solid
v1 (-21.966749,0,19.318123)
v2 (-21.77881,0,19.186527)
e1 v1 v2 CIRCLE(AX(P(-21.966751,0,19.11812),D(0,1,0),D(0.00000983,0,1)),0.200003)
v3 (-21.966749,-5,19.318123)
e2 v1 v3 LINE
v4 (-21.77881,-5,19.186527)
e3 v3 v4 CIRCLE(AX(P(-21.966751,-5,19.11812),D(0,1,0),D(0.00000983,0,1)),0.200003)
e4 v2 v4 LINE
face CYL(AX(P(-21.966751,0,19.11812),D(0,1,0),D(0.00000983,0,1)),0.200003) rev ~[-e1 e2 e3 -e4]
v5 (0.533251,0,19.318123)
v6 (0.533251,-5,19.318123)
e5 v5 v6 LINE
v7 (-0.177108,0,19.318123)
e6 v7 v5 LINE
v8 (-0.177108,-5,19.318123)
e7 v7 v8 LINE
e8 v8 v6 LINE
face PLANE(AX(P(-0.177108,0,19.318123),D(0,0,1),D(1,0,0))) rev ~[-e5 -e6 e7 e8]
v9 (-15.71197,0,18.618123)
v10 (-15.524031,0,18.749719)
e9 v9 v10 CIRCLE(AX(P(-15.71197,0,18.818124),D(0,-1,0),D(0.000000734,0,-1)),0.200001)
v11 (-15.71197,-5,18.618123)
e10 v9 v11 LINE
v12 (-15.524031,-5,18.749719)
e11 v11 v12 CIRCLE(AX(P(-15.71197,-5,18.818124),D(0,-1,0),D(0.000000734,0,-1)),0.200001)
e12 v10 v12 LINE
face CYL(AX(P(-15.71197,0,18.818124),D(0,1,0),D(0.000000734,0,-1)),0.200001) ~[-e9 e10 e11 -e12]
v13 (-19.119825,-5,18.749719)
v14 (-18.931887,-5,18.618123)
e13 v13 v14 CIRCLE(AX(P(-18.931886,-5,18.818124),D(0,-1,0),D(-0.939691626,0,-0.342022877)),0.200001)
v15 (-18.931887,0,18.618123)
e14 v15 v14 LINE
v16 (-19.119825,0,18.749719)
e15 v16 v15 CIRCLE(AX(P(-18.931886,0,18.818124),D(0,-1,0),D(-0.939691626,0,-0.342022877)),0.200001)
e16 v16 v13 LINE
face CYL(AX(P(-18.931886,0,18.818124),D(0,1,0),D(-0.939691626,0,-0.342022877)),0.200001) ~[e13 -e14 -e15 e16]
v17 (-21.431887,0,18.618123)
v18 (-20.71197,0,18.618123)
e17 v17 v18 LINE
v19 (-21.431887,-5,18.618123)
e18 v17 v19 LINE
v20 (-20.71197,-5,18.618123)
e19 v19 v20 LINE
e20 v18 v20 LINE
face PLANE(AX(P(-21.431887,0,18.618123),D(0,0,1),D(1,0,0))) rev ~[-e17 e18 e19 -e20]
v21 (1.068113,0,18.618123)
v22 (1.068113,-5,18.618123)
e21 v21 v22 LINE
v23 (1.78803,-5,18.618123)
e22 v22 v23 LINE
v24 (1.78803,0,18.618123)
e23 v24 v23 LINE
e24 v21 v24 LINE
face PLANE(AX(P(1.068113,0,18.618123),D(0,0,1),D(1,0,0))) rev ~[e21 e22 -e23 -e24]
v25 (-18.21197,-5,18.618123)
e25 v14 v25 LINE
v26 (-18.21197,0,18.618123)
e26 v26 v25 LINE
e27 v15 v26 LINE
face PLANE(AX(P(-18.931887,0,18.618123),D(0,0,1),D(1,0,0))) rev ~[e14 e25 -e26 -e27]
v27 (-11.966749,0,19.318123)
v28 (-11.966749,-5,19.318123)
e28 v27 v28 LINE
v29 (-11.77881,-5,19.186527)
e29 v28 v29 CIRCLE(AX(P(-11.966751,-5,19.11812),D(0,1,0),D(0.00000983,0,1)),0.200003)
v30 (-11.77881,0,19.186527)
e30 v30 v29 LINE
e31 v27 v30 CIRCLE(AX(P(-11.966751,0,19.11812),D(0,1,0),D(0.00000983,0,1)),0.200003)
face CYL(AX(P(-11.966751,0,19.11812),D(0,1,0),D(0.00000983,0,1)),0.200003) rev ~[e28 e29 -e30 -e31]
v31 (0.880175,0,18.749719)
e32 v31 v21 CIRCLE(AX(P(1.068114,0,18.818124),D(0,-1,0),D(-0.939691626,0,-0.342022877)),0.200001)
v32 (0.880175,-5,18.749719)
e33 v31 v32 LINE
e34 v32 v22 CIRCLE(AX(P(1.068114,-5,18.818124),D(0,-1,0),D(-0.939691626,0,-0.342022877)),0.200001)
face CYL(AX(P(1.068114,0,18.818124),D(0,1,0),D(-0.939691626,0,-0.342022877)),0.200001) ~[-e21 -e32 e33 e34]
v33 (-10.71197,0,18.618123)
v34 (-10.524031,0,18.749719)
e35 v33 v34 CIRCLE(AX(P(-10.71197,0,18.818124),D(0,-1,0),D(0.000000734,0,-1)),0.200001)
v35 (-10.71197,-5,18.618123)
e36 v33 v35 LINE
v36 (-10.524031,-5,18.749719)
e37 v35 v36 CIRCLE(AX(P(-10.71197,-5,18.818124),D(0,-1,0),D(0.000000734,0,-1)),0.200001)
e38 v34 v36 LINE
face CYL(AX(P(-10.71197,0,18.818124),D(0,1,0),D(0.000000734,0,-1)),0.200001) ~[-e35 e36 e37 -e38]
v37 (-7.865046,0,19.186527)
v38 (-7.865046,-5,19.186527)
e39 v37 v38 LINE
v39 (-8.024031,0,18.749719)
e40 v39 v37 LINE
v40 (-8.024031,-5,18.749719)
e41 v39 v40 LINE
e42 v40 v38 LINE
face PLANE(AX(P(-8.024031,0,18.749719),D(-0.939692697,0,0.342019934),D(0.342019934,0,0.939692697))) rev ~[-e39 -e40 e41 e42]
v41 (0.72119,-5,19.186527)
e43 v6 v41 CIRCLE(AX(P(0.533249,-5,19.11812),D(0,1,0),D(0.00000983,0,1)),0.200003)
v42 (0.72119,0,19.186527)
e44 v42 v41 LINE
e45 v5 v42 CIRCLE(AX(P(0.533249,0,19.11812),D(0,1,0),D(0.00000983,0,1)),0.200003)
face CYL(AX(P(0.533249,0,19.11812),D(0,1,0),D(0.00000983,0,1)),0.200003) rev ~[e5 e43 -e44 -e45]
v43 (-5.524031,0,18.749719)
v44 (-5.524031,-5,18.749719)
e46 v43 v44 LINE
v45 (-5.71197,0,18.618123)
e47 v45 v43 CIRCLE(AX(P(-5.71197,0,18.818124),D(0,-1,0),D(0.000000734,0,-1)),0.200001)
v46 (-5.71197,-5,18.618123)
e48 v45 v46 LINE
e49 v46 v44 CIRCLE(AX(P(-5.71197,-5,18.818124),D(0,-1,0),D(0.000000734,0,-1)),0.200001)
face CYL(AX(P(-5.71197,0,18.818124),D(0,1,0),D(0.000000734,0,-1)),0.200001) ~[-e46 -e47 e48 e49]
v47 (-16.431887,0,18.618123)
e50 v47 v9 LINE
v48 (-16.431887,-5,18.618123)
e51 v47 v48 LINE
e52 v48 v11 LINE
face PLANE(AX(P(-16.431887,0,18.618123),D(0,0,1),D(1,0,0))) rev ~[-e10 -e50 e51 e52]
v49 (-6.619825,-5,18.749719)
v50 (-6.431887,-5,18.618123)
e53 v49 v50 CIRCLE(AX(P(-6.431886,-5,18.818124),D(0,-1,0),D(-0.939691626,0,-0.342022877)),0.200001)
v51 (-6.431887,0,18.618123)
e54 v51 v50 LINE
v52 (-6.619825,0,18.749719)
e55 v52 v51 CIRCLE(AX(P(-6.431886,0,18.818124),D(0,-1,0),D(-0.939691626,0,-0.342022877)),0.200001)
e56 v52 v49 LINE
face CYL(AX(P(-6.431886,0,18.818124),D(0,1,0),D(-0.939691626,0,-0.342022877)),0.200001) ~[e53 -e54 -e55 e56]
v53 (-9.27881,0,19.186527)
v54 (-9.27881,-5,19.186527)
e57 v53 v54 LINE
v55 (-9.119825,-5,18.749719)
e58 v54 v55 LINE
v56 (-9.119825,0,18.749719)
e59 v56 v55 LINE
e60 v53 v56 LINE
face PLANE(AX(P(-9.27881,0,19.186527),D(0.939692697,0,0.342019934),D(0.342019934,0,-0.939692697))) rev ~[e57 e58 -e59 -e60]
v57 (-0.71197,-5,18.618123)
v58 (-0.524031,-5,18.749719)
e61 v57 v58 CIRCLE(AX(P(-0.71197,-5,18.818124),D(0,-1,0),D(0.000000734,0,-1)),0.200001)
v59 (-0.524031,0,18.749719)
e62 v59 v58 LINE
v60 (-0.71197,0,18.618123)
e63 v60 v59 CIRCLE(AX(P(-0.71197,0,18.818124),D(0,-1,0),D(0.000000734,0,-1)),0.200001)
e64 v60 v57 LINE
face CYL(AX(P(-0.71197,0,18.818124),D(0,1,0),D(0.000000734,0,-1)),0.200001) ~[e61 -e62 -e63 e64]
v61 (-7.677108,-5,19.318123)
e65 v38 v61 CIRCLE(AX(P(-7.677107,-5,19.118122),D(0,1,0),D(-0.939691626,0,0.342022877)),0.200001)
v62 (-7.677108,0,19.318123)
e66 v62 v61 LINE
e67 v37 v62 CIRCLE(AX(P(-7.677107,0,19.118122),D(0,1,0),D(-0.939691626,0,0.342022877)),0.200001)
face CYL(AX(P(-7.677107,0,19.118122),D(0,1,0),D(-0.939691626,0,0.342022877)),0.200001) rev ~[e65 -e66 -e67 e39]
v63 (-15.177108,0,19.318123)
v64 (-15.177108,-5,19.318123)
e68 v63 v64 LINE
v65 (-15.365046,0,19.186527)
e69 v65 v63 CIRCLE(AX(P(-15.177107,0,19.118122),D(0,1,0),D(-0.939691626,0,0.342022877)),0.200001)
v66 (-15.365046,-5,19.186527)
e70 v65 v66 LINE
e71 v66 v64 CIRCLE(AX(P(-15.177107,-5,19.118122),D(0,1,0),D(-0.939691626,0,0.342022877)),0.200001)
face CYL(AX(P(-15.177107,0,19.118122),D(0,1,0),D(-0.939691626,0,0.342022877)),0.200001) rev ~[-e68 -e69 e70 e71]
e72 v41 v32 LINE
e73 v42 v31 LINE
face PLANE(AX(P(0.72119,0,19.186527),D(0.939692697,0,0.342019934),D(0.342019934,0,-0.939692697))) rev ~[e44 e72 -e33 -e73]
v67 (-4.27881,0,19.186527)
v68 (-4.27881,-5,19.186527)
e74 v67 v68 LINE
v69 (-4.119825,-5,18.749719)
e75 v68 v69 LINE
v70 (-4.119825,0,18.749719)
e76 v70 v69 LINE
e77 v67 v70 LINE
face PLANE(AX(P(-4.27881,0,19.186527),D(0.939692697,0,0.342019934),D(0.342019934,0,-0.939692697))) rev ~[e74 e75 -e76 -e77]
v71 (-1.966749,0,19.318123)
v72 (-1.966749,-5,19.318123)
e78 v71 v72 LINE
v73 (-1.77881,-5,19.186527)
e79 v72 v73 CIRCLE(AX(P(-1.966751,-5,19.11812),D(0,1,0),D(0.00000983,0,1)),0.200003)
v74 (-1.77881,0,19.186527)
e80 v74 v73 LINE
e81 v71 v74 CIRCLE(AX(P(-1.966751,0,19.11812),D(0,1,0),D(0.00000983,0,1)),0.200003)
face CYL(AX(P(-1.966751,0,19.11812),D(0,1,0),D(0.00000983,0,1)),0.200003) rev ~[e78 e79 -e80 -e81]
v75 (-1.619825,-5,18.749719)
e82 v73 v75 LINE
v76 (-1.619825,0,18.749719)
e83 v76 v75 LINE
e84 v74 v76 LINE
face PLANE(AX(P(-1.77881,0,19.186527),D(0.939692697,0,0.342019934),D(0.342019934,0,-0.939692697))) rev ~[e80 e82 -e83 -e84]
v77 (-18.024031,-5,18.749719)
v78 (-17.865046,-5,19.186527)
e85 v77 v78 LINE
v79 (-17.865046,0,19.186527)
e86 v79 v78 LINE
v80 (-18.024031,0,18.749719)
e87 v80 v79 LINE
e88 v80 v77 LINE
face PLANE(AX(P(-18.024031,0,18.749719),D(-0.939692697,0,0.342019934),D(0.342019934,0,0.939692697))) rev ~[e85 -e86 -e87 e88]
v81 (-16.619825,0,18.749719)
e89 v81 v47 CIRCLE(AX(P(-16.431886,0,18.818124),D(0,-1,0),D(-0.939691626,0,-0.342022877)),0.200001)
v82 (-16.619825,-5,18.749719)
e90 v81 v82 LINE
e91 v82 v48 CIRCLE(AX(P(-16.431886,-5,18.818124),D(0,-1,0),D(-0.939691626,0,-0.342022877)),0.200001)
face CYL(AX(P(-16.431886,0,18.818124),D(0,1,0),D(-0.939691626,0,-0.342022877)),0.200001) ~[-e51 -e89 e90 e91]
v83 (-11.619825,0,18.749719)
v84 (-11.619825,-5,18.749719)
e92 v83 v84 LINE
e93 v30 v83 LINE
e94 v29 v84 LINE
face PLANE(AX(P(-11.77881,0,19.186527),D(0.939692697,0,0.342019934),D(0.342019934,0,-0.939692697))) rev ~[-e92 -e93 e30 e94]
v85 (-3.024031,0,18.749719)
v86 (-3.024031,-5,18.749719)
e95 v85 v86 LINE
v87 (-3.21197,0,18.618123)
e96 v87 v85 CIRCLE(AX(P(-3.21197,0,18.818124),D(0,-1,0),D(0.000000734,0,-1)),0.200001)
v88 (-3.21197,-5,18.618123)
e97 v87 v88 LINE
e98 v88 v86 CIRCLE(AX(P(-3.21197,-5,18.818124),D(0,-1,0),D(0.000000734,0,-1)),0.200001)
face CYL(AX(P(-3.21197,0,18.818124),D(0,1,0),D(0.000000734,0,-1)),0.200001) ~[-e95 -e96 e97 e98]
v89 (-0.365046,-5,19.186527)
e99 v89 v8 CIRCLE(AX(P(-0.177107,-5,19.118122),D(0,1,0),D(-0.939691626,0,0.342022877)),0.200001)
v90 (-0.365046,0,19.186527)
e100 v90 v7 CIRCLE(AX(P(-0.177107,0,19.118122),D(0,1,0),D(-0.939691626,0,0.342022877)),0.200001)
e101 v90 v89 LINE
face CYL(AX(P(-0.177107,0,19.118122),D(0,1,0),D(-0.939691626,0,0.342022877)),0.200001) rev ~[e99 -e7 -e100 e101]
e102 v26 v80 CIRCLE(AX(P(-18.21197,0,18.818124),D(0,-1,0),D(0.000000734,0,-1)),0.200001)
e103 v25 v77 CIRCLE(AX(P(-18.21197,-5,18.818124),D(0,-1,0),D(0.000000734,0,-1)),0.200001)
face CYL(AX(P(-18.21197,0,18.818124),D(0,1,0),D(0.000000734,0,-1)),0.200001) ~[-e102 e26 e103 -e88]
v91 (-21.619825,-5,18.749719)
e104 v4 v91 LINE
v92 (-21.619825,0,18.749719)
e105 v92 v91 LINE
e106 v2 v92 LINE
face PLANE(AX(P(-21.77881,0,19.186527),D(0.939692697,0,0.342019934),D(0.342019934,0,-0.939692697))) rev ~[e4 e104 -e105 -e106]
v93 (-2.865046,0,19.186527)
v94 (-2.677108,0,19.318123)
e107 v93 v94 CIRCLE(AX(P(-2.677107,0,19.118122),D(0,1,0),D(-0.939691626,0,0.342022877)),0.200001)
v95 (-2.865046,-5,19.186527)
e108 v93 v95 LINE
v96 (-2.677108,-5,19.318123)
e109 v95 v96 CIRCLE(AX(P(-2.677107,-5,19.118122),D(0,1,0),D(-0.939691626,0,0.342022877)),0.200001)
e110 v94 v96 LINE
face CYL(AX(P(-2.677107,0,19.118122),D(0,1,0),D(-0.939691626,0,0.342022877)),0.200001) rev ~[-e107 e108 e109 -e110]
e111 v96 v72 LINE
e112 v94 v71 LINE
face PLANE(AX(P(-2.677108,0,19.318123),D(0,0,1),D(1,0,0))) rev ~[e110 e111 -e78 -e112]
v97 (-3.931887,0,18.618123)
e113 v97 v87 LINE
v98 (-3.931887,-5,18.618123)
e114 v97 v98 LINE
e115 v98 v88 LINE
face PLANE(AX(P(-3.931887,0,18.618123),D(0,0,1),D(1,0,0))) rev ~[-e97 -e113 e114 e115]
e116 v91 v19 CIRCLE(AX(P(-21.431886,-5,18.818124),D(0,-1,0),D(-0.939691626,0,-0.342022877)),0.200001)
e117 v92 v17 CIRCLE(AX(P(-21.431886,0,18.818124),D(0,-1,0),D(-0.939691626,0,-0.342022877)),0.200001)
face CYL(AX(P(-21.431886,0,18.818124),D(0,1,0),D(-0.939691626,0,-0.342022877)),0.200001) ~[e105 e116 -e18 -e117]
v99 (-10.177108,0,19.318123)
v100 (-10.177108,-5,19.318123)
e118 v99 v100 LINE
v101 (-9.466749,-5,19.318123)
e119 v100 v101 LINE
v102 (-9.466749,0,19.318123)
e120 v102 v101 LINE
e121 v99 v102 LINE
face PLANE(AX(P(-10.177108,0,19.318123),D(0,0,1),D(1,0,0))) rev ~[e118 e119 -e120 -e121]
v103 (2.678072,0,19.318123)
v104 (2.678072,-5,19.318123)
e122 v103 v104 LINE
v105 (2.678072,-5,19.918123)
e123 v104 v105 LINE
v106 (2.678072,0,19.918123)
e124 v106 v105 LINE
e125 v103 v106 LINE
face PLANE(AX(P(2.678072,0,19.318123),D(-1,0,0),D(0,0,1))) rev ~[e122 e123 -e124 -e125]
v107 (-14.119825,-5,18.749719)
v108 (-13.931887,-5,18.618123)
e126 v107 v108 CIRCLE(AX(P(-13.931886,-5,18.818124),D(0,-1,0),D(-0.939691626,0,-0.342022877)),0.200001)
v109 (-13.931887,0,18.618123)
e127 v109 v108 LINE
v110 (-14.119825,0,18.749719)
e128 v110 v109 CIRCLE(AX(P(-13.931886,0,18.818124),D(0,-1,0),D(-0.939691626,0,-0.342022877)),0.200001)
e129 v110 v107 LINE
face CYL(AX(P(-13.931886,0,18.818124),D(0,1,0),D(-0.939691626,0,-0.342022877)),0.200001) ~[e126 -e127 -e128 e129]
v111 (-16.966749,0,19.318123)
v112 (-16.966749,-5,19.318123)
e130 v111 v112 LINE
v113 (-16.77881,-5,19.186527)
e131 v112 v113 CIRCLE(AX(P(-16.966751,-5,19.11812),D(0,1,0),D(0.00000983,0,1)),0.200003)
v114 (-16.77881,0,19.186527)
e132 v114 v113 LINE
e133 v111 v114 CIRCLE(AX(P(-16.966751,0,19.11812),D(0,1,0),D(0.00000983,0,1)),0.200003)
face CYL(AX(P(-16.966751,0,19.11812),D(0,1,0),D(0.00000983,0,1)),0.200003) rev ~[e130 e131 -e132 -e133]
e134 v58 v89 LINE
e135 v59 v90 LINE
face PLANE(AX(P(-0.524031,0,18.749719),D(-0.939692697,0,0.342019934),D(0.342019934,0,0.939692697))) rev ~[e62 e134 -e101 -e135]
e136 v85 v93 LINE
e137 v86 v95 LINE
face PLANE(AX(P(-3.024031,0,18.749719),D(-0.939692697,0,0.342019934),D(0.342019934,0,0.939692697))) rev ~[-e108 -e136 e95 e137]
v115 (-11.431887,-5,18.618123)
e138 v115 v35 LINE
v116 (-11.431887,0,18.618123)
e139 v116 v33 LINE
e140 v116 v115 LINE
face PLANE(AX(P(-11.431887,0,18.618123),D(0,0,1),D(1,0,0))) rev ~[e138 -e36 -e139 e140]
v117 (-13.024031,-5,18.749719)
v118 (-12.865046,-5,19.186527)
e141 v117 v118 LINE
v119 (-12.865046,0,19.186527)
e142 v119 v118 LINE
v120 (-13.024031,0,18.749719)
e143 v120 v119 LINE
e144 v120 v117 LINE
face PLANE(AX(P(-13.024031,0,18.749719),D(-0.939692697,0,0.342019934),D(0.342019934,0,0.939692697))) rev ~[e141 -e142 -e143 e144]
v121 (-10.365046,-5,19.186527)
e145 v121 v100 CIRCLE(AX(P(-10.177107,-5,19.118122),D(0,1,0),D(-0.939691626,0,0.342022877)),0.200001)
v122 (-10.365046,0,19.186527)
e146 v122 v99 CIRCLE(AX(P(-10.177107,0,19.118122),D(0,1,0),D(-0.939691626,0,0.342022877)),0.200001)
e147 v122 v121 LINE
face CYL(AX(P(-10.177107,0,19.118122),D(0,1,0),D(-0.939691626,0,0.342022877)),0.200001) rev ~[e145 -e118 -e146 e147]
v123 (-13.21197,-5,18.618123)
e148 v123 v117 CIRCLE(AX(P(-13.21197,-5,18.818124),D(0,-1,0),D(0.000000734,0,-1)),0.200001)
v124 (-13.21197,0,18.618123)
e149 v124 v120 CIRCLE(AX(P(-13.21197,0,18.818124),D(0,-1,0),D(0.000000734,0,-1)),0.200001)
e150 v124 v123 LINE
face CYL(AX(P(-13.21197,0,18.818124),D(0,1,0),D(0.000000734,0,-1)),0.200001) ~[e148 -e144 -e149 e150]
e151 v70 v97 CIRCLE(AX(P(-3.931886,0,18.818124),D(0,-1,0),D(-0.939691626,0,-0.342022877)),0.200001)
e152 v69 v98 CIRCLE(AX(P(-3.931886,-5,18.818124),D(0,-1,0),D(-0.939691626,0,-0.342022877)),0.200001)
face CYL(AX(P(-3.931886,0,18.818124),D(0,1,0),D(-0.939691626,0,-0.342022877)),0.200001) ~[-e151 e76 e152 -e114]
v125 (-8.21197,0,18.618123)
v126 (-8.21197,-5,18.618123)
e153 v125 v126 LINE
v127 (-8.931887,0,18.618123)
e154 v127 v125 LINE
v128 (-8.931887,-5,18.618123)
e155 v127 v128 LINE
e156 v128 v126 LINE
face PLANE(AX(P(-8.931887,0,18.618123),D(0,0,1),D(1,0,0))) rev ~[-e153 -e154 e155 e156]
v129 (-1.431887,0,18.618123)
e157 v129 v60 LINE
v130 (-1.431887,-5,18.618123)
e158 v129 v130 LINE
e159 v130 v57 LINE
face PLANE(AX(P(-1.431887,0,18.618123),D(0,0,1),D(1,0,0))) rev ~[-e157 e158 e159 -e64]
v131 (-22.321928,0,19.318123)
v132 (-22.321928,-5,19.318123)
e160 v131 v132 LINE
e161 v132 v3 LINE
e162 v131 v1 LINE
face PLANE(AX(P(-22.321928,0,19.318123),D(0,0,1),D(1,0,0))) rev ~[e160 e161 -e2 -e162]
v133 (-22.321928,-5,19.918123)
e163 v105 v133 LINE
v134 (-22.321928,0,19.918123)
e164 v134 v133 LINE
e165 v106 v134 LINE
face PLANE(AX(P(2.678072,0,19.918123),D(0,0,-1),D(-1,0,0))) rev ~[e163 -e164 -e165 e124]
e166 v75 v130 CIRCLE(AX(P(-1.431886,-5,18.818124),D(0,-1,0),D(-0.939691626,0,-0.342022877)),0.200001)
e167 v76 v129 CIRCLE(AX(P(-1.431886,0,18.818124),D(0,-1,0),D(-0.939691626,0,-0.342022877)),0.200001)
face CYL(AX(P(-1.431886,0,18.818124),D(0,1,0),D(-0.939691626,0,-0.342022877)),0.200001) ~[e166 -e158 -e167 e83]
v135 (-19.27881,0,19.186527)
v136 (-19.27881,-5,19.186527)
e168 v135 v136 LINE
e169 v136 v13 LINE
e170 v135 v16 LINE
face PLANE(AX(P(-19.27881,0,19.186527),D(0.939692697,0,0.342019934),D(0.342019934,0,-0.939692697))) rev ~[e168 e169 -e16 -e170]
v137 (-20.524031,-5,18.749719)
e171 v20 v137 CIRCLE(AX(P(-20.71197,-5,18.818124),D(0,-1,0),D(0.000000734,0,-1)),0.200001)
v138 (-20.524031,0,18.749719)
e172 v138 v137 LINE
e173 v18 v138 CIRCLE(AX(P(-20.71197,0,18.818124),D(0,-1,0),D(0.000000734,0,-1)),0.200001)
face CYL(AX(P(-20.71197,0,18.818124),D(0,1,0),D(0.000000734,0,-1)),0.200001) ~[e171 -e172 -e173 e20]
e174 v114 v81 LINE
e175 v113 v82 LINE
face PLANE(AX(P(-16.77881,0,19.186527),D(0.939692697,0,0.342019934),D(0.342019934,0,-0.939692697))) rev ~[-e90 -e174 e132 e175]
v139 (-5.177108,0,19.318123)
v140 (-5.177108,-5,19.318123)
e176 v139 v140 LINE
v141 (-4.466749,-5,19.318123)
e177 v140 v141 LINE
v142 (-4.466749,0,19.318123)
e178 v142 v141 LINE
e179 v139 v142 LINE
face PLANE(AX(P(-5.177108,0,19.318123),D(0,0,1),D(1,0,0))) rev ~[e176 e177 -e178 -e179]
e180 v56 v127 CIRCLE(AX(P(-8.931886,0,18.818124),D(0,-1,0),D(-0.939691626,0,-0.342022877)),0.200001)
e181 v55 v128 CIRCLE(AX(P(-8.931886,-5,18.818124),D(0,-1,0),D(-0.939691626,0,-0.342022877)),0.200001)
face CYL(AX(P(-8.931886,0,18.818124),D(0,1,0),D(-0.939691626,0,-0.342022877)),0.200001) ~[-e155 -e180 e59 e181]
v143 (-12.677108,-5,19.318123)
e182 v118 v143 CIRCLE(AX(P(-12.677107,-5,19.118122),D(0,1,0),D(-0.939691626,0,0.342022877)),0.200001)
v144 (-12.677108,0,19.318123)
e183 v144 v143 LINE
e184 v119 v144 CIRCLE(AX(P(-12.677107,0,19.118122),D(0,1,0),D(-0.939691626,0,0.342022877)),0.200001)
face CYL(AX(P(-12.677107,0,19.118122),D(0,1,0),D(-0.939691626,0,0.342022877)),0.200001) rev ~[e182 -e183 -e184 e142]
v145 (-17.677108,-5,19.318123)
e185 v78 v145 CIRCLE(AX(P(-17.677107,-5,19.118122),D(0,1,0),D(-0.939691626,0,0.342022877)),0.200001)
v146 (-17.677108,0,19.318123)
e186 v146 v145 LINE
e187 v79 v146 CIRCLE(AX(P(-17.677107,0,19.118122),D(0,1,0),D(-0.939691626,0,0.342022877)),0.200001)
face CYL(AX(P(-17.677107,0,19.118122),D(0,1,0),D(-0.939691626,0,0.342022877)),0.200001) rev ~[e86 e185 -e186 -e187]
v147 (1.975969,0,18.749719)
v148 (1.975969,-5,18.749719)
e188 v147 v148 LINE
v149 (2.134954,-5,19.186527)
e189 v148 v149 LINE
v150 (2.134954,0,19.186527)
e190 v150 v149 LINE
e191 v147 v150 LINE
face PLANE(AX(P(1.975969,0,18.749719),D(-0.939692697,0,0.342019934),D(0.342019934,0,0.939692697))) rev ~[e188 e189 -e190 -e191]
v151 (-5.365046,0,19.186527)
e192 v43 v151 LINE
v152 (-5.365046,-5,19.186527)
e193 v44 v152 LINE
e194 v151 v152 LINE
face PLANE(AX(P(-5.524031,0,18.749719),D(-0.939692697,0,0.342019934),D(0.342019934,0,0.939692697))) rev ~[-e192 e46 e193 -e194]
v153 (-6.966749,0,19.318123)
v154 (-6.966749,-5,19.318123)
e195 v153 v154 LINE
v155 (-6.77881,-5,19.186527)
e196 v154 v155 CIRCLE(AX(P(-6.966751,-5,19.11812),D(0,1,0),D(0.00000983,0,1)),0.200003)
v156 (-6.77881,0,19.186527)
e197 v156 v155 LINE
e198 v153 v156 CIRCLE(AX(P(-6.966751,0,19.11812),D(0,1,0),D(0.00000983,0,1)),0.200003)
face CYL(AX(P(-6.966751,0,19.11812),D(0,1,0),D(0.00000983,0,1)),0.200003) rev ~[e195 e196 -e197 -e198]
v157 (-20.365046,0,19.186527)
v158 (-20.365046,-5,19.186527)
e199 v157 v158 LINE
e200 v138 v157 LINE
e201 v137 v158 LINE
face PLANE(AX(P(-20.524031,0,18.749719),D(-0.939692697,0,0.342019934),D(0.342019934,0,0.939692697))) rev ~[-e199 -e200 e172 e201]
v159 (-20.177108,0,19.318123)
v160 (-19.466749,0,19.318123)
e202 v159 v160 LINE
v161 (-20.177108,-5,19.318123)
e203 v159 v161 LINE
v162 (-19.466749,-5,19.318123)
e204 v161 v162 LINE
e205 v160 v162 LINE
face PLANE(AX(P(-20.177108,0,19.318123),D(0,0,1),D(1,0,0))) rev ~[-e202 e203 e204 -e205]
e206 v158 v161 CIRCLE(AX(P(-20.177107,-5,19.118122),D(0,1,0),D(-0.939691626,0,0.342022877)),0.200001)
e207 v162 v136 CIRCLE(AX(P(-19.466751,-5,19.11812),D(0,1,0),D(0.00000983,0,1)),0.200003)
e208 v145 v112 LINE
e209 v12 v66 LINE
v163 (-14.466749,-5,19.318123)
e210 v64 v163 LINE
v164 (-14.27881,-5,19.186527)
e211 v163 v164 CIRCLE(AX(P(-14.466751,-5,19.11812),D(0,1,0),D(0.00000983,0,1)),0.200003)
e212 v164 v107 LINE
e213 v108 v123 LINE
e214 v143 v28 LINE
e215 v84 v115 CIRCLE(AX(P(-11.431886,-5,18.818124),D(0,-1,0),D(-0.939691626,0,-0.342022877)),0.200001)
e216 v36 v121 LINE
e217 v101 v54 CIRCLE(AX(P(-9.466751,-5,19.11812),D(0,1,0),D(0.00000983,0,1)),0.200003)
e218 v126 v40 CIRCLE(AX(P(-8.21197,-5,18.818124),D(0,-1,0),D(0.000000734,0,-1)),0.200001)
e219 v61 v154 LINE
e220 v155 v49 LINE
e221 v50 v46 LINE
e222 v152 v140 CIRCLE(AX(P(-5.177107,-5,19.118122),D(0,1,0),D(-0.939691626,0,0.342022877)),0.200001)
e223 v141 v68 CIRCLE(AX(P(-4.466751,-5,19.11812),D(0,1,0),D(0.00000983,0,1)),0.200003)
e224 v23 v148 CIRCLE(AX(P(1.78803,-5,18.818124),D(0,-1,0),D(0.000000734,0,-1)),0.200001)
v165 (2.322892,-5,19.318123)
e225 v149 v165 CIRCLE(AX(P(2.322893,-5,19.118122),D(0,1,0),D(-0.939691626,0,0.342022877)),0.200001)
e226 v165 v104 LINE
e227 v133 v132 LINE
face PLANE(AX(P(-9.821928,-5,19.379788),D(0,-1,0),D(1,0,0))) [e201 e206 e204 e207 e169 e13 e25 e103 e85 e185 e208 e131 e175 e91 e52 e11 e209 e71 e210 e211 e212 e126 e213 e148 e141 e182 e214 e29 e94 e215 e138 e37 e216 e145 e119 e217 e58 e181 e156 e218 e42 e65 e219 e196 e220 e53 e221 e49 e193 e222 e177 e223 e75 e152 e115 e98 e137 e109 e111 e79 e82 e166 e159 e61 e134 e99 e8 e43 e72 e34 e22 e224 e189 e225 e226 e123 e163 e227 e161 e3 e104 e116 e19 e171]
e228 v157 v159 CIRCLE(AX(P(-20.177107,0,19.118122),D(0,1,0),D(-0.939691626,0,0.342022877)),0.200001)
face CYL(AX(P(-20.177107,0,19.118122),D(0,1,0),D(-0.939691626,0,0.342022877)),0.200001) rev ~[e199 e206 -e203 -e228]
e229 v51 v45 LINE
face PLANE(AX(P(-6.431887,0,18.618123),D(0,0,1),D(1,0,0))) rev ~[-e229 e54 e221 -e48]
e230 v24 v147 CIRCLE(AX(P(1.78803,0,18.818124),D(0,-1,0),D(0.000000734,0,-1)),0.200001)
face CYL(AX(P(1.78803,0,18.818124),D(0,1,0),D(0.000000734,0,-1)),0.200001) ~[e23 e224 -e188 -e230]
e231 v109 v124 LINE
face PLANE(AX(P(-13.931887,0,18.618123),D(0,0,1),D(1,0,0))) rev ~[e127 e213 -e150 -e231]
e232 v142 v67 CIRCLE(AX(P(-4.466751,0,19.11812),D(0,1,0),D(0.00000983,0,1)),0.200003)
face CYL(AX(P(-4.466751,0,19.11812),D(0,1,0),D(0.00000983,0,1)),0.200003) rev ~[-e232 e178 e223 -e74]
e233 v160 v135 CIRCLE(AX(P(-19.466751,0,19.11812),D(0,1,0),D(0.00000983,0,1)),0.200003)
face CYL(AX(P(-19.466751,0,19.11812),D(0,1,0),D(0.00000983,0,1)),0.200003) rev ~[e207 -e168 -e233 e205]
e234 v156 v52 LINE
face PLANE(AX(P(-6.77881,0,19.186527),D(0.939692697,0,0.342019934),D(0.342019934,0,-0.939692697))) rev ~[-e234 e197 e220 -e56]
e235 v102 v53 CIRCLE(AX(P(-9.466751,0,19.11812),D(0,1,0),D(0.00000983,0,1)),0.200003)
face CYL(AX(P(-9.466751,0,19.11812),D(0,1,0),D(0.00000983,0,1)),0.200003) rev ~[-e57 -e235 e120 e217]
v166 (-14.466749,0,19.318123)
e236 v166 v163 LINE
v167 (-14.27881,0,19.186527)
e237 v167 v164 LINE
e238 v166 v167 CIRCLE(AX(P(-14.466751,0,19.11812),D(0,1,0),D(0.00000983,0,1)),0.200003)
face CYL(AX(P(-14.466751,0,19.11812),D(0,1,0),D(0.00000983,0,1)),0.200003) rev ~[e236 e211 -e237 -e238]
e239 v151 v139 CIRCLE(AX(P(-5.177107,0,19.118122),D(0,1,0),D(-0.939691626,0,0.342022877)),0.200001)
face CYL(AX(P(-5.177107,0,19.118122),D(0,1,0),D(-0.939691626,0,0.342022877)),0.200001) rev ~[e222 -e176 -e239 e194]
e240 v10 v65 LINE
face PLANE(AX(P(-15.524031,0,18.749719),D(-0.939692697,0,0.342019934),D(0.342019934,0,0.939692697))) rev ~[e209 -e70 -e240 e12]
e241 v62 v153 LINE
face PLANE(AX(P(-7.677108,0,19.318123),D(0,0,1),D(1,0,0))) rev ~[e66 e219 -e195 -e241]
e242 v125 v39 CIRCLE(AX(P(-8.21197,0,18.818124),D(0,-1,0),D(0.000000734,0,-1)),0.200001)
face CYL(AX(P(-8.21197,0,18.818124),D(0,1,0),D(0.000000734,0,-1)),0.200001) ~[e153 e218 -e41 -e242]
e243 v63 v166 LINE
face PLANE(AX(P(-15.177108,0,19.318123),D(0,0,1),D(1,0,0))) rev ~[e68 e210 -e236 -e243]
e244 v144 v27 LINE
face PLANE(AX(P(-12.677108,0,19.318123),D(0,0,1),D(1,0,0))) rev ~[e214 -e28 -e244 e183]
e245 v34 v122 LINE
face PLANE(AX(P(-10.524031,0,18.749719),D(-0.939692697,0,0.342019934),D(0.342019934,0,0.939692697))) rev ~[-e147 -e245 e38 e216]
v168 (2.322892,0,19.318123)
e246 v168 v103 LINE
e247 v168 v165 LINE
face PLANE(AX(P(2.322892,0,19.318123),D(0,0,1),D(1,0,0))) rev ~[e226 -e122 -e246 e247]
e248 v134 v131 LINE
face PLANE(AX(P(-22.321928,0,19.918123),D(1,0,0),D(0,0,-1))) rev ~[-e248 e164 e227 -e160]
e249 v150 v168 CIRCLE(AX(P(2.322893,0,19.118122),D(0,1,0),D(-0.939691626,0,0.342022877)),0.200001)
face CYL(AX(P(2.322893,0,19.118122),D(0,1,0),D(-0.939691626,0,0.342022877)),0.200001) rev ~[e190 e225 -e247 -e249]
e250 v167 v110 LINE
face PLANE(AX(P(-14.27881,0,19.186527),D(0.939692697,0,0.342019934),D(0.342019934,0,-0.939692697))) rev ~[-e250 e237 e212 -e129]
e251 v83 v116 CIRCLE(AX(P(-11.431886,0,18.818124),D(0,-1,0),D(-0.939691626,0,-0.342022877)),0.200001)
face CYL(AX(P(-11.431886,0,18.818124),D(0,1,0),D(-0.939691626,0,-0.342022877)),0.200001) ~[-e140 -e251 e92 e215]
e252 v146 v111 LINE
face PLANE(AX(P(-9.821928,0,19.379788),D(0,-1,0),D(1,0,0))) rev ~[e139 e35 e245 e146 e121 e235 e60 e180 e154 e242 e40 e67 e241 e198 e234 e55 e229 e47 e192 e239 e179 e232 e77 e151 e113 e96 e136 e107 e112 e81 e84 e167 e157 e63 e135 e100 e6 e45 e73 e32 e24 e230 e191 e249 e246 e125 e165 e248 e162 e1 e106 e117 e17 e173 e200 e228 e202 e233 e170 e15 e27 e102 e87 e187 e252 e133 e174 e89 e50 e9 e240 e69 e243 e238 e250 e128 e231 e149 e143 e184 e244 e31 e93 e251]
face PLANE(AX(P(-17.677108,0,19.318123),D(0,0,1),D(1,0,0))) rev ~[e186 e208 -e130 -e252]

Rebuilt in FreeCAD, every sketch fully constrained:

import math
import FreeCAD as App
import Part
import Sketcher
from FreeCAD import Vector
Q = App.Units.Quantity

doc = App.newDocument("Part")
body = doc.addObject("PartDesign::Body", "Body")

# Sketch on XZ plane
sketch1 = body.newObject("Sketcher::SketchObject", "Sketch")
sketch1.AttachmentSupport = (doc.getObject("XZ_Plane"), [""])
sketch1.MapMode = "FlatFace"
sketch1.addGeometry([
    Part.LineSegment(Vector(-22.32, 19.92, 0), Vector(-22.32, 19.32, 0)),  # 0
    Part.LineSegment(Vector(-22.32, 19.32, 0), Vector(-21.97, 19.32, 0)),  # 1
    Part.ArcOfCircle(Part.Circle(Vector(-21.97, 19.12, 0), Vector(0, 0, 1), 0.2), math.radians(20), math.radians(90)),  # 2
    Part.LineSegment(Vector(-21.78, 19.19, 0), Vector(-21.62, 18.75, 0)),  # 3
    Part.ArcOfCircle(Part.Circle(Vector(-21.43, 18.82, 0), Vector(0, 0, 1), 0.2), math.radians(-160), math.radians(-90)),  # 4
    Part.LineSegment(Vector(-21.43, 18.62, 0), Vector(-20.71, 18.62, 0)),  # 5
    Part.ArcOfCircle(Part.Circle(Vector(-20.71, 18.82, 0), Vector(0, 0, 1), 0.2), math.radians(-90), math.radians(-20)),  # 6
    Part.LineSegment(Vector(-20.52, 18.75, 0), Vector(-20.37, 19.19, 0)),  # 7
    Part.ArcOfCircle(Part.Circle(Vector(-20.18, 19.12, 0), Vector(0, 0, 1), 0.2), math.radians(90), math.radians(160)),  # 8
    Part.LineSegment(Vector(-20.18, 19.32, 0), Vector(-19.47, 19.32, 0)),  # 9
    Part.ArcOfCircle(Part.Circle(Vector(-19.47, 19.12, 0), Vector(0, 0, 1), 0.2), math.radians(20), math.radians(90)),  # 10
    Part.LineSegment(Vector(-19.28, 19.19, 0), Vector(-19.12, 18.75, 0)),  # 11
    Part.ArcOfCircle(Part.Circle(Vector(-18.93, 18.82, 0), Vector(0, 0, 1), 0.2), math.radians(-160), math.radians(-90)),  # 12
    Part.LineSegment(Vector(-18.93, 18.62, 0), Vector(-18.21, 18.62, 0)),  # 13
    Part.ArcOfCircle(Part.Circle(Vector(-18.21, 18.82, 0), Vector(0, 0, 1), 0.2), math.radians(-90), math.radians(-20)),  # 14
    Part.LineSegment(Vector(-18.02, 18.75, 0), Vector(-17.87, 19.19, 0)),  # 15
    Part.ArcOfCircle(Part.Circle(Vector(-17.68, 19.12, 0), Vector(0, 0, 1), 0.2), math.radians(90), math.radians(160)),  # 16
    Part.LineSegment(Vector(-17.68, 19.32, 0), Vector(-16.97, 19.32, 0)),  # 17
    Part.ArcOfCircle(Part.Circle(Vector(-16.97, 19.12, 0), Vector(0, 0, 1), 0.2), math.radians(20), math.radians(90)),  # 18
    Part.LineSegment(Vector(-16.78, 19.19, 0), Vector(-16.62, 18.75, 0)),  # 19
    Part.ArcOfCircle(Part.Circle(Vector(-16.43, 18.82, 0), Vector(0, 0, 1), 0.2), math.radians(-160), math.radians(-90)),  # 20
    Part.LineSegment(Vector(-16.43, 18.62, 0), Vector(-15.71, 18.62, 0)),  # 21
    Part.ArcOfCircle(Part.Circle(Vector(-15.71, 18.82, 0), Vector(0, 0, 1), 0.2), math.radians(-90), math.radians(-20)),  # 22
    Part.LineSegment(Vector(-15.52, 18.75, 0), Vector(-15.37, 19.19, 0)),  # 23
    Part.ArcOfCircle(Part.Circle(Vector(-15.18, 19.12, 0), Vector(0, 0, 1), 0.2), math.radians(90), math.radians(160)),  # 24
    Part.LineSegment(Vector(-15.18, 19.32, 0), Vector(-14.47, 19.32, 0)),  # 25
    Part.ArcOfCircle(Part.Circle(Vector(-14.47, 19.12, 0), Vector(0, 0, 1), 0.2), math.radians(20), math.radians(90)),  # 26
    Part.LineSegment(Vector(-14.28, 19.19, 0), Vector(-14.12, 18.75, 0)),  # 27
    Part.ArcOfCircle(Part.Circle(Vector(-13.93, 18.82, 0), Vector(0, 0, 1), 0.2), math.radians(-160), math.radians(-90)),  # 28
    Part.LineSegment(Vector(-13.93, 18.62, 0), Vector(-13.21, 18.62, 0)),  # 29
    Part.ArcOfCircle(Part.Circle(Vector(-13.21, 18.82, 0), Vector(0, 0, 1), 0.2), math.radians(-90), math.radians(-20)),  # 30
    Part.LineSegment(Vector(-13.02, 18.75, 0), Vector(-12.87, 19.19, 0)),  # 31
    Part.ArcOfCircle(Part.Circle(Vector(-12.68, 19.12, 0), Vector(0, 0, 1), 0.2), math.radians(90), math.radians(160)),  # 32
    Part.LineSegment(Vector(-12.68, 19.32, 0), Vector(-11.97, 19.32, 0)),  # 33
    Part.ArcOfCircle(Part.Circle(Vector(-11.97, 19.12, 0), Vector(0, 0, 1), 0.2), math.radians(20), math.radians(90)),  # 34
    Part.LineSegment(Vector(-11.78, 19.19, 0), Vector(-11.62, 18.75, 0)),  # 35
    Part.ArcOfCircle(Part.Circle(Vector(-11.43, 18.82, 0), Vector(0, 0, 1), 0.2), math.radians(-160), math.radians(-90)),  # 36
    Part.LineSegment(Vector(-11.43, 18.62, 0), Vector(-10.71, 18.62, 0)),  # 37
    Part.ArcOfCircle(Part.Circle(Vector(-10.71, 18.82, 0), Vector(0, 0, 1), 0.2), math.radians(-90), math.radians(-20)),  # 38
    Part.LineSegment(Vector(-10.52, 18.75, 0), Vector(-10.37, 19.19, 0)),  # 39
    Part.ArcOfCircle(Part.Circle(Vector(-10.18, 19.12, 0), Vector(0, 0, 1), 0.2), math.radians(90), math.radians(160)),  # 40
    Part.LineSegment(Vector(-10.18, 19.32, 0), Vector(-9.47, 19.32, 0)),  # 41
    Part.ArcOfCircle(Part.Circle(Vector(-9.47, 19.12, 0), Vector(0, 0, 1), 0.2), math.radians(20), math.radians(90)),  # 42
    Part.LineSegment(Vector(-9.28, 19.19, 0), Vector(-9.12, 18.75, 0)),  # 43
    Part.ArcOfCircle(Part.Circle(Vector(-8.93, 18.82, 0), Vector(0, 0, 1), 0.2), math.radians(-160), math.radians(-90)),  # 44
    Part.LineSegment(Vector(-8.93, 18.62, 0), Vector(-8.21, 18.62, 0)),  # 45
    Part.ArcOfCircle(Part.Circle(Vector(-8.21, 18.82, 0), Vector(0, 0, 1), 0.2), math.radians(-90), math.radians(-20)),  # 46
    Part.LineSegment(Vector(-8.02, 18.75, 0), Vector(-7.87, 19.19, 0)),  # 47
    Part.ArcOfCircle(Part.Circle(Vector(-7.68, 19.12, 0), Vector(0, 0, 1), 0.2), math.radians(90), math.radians(160)),  # 48
    Part.LineSegment(Vector(-7.68, 19.32, 0), Vector(-6.97, 19.32, 0)),  # 49
    Part.ArcOfCircle(Part.Circle(Vector(-6.97, 19.12, 0), Vector(0, 0, 1), 0.2), math.radians(20), math.radians(90)),  # 50
    Part.LineSegment(Vector(-6.78, 19.19, 0), Vector(-6.62, 18.75, 0)),  # 51
    Part.ArcOfCircle(Part.Circle(Vector(-6.43, 18.82, 0), Vector(0, 0, 1), 0.2), math.radians(-160), math.radians(-90)),  # 52
    Part.LineSegment(Vector(-6.43, 18.62, 0), Vector(-5.71, 18.62, 0)),  # 53
    Part.ArcOfCircle(Part.Circle(Vector(-5.71, 18.82, 0), Vector(0, 0, 1), 0.2), math.radians(-90), math.radians(-20)),  # 54
    Part.LineSegment(Vector(-5.52, 18.75, 0), Vector(-5.37, 19.19, 0)),  # 55
    Part.ArcOfCircle(Part.Circle(Vector(-5.18, 19.12, 0), Vector(0, 0, 1), 0.2), math.radians(90), math.radians(160)),  # 56
    Part.LineSegment(Vector(-5.18, 19.32, 0), Vector(-4.47, 19.32, 0)),  # 57
    Part.ArcOfCircle(Part.Circle(Vector(-4.47, 19.12, 0), Vector(0, 0, 1), 0.2), math.radians(20), math.radians(90)),  # 58
    Part.LineSegment(Vector(-4.28, 19.19, 0), Vector(-4.12, 18.75, 0)),  # 59
    Part.ArcOfCircle(Part.Circle(Vector(-3.93, 18.82, 0), Vector(0, 0, 1), 0.2), math.radians(-160), math.radians(-90)),  # 60
    Part.LineSegment(Vector(-3.93, 18.62, 0), Vector(-3.21, 18.62, 0)),  # 61
    Part.ArcOfCircle(Part.Circle(Vector(-3.21, 18.82, 0), Vector(0, 0, 1), 0.2), math.radians(-90), math.radians(-20)),  # 62
    Part.LineSegment(Vector(-3.02, 18.75, 0), Vector(-2.87, 19.19, 0)),  # 63
    Part.ArcOfCircle(Part.Circle(Vector(-2.68, 19.12, 0), Vector(0, 0, 1), 0.2), math.radians(90), math.radians(160)),  # 64
    Part.LineSegment(Vector(-2.68, 19.32, 0), Vector(-1.97, 19.32, 0)),  # 65
    Part.ArcOfCircle(Part.Circle(Vector(-1.97, 19.12, 0), Vector(0, 0, 1), 0.2), math.radians(20), math.radians(90)),  # 66
    Part.LineSegment(Vector(-1.78, 19.19, 0), Vector(-1.62, 18.75, 0)),  # 67
    Part.ArcOfCircle(Part.Circle(Vector(-1.43, 18.82, 0), Vector(0, 0, 1), 0.2), math.radians(-160), math.radians(-90)),  # 68
    Part.LineSegment(Vector(-1.43, 18.62, 0), Vector(-0.71, 18.62, 0)),  # 69
    Part.ArcOfCircle(Part.Circle(Vector(-0.71, 18.82, 0), Vector(0, 0, 1), 0.2), math.radians(-90), math.radians(-20)),  # 70
    Part.LineSegment(Vector(-0.52, 18.75, 0), Vector(-0.37, 19.19, 0)),  # 71
    Part.ArcOfCircle(Part.Circle(Vector(-0.18, 19.12, 0), Vector(0, 0, 1), 0.2), math.radians(90), math.radians(160)),  # 72
    Part.LineSegment(Vector(-0.18, 19.32, 0), Vector(0.53, 19.32, 0)),  # 73
    Part.ArcOfCircle(Part.Circle(Vector(0.53, 19.12, 0), Vector(0, 0, 1), 0.2), math.radians(20), math.radians(90)),  # 74
    Part.LineSegment(Vector(0.72, 19.19, 0), Vector(0.88, 18.75, 0)),  # 75
    Part.ArcOfCircle(Part.Circle(Vector(1.07, 18.82, 0), Vector(0, 0, 1), 0.2), math.radians(-160), math.radians(-90)),  # 76
    Part.LineSegment(Vector(1.07, 18.62, 0), Vector(1.79, 18.62, 0)),  # 77
    Part.ArcOfCircle(Part.Circle(Vector(1.79, 18.82, 0), Vector(0, 0, 1), 0.2), math.radians(-90), math.radians(-20)),  # 78
    Part.LineSegment(Vector(1.98, 18.75, 0), Vector(2.13, 19.19, 0)),  # 79
    Part.ArcOfCircle(Part.Circle(Vector(2.32, 19.12, 0), Vector(0, 0, 1), 0.2), math.radians(90), math.radians(160)),  # 80
    Part.LineSegment(Vector(2.32, 19.32, 0), Vector(2.68, 19.32, 0)),  # 81
    Part.LineSegment(Vector(2.68, 19.32, 0), Vector(2.68, 19.92, 0)),  # 82
    Part.LineSegment(Vector(2.68, 19.92, 0), Vector(-22.32, 19.92, 0)),  # 83
], False)
sketch1.addConstraint([
    Sketcher.Constraint("Coincident", 0, 2, 1, 1),
    Sketcher.Constraint("Coincident", 1, 2, 2, 2),
    Sketcher.Constraint("Coincident", 2, 1, 3, 1),
    Sketcher.Constraint("Coincident", 3, 2, 4, 1),
    Sketcher.Constraint("Coincident", 4, 2, 5, 1),
    Sketcher.Constraint("Tangent", 5, 2, 6, 1),
    Sketcher.Constraint("Coincident", 6, 2, 7, 1),
    Sketcher.Constraint("Coincident", 7, 2, 8, 2),
    Sketcher.Constraint("Coincident", 8, 1, 9, 1),
    Sketcher.Constraint("Coincident", 9, 2, 10, 2),
    Sketcher.Constraint("Coincident", 10, 1, 11, 1),
    Sketcher.Constraint("Coincident", 11, 2, 12, 1),
    Sketcher.Constraint("Coincident", 12, 2, 13, 1),
    Sketcher.Constraint("Tangent", 13, 2, 14, 1),
    Sketcher.Constraint("Coincident", 14, 2, 15, 1),
    Sketcher.Constraint("Coincident", 15, 2, 16, 2),
    Sketcher.Constraint("Coincident", 16, 1, 17, 1),
    Sketcher.Constraint("Coincident", 17, 2, 18, 2),
    Sketcher.Constraint("Coincident", 18, 1, 19, 1),
    Sketcher.Constraint("Coincident", 19, 2, 20, 1),
    Sketcher.Constraint("Coincident", 20, 2, 21, 1),
    Sketcher.Constraint("Tangent", 21, 2, 22, 1),
    Sketcher.Constraint("Coincident", 22, 2, 23, 1),
    Sketcher.Constraint("Coincident", 23, 2, 24, 2),
    Sketcher.Constraint("Coincident", 24, 1, 25, 1),
    Sketcher.Constraint("Coincident", 25, 2, 26, 2),
    Sketcher.Constraint("Coincident", 26, 1, 27, 1),
    Sketcher.Constraint("Coincident", 27, 2, 28, 1),
    Sketcher.Constraint("Coincident", 28, 2, 29, 1),
    Sketcher.Constraint("Tangent", 29, 2, 30, 1),
    Sketcher.Constraint("Coincident", 30, 2, 31, 1),
    Sketcher.Constraint("Coincident", 31, 2, 32, 2),
    Sketcher.Constraint("Coincident", 32, 1, 33, 1),
    Sketcher.Constraint("Coincident", 33, 2, 34, 2),
    Sketcher.Constraint("Coincident", 34, 1, 35, 1),
    Sketcher.Constraint("Coincident", 35, 2, 36, 1),
    Sketcher.Constraint("Coincident", 36, 2, 37, 1),
    Sketcher.Constraint("Tangent", 37, 2, 38, 1),
    Sketcher.Constraint("Coincident", 38, 2, 39, 1),
    Sketcher.Constraint("Coincident", 39, 2, 40, 2),
    Sketcher.Constraint("Coincident", 40, 1, 41, 1),
    Sketcher.Constraint("Coincident", 41, 2, 42, 2),
    Sketcher.Constraint("Coincident", 42, 1, 43, 1),
    Sketcher.Constraint("Coincident", 43, 2, 44, 1),
    Sketcher.Constraint("Coincident", 44, 2, 45, 1),
    Sketcher.Constraint("Tangent", 45, 2, 46, 1),
    Sketcher.Constraint("Coincident", 46, 2, 47, 1),
    Sketcher.Constraint("Coincident", 47, 2, 48, 2),
    Sketcher.Constraint("Coincident", 48, 1, 49, 1),
    Sketcher.Constraint("Coincident", 49, 2, 50, 2),
    Sketcher.Constraint("Coincident", 50, 1, 51, 1),
    Sketcher.Constraint("Coincident", 51, 2, 52, 1),
    Sketcher.Constraint("Coincident", 52, 2, 53, 1),
    Sketcher.Constraint("Tangent", 53, 2, 54, 1),
    Sketcher.Constraint("Coincident", 54, 2, 55, 1),
    Sketcher.Constraint("Coincident", 55, 2, 56, 2),
    Sketcher.Constraint("Coincident", 56, 1, 57, 1),
    Sketcher.Constraint("Coincident", 57, 2, 58, 2),
    Sketcher.Constraint("Coincident", 58, 1, 59, 1),
    Sketcher.Constraint("Coincident", 59, 2, 60, 1),
    Sketcher.Constraint("Coincident", 60, 2, 61, 1),
    Sketcher.Constraint("Tangent", 61, 2, 62, 1),
    Sketcher.Constraint("Coincident", 62, 2, 63, 1),
    Sketcher.Constraint("Coincident", 63, 2, 64, 2),
    Sketcher.Constraint("Coincident", 64, 1, 65, 1),
    Sketcher.Constraint("Coincident", 65, 2, 66, 2),
    Sketcher.Constraint("Coincident", 66, 1, 67, 1),
    Sketcher.Constraint("Coincident", 67, 2, 68, 1),
    Sketcher.Constraint("Coincident", 68, 2, 69, 1),
    Sketcher.Constraint("Tangent", 69, 2, 70, 1),
    Sketcher.Constraint("Coincident", 70, 2, 71, 1),
    Sketcher.Constraint("Coincident", 71, 2, 72, 2),
    Sketcher.Constraint("Coincident", 72, 1, 73, 1),
    Sketcher.Constraint("Coincident", 73, 2, 74, 2),
    Sketcher.Constraint("Coincident", 74, 1, 75, 1),
    Sketcher.Constraint("Coincident", 75, 2, 76, 1),
    Sketcher.Constraint("Coincident", 76, 2, 77, 1),
    Sketcher.Constraint("Tangent", 77, 2, 78, 1),
    Sketcher.Constraint("Coincident", 78, 2, 79, 1),
    Sketcher.Constraint("Coincident", 79, 2, 80, 2),
    Sketcher.Constraint("Coincident", 80, 1, 81, 1),
    Sketcher.Constraint("Coincident", 81, 2, 82, 1),
    Sketcher.Constraint("Coincident", 82, 2, 83, 1),
    Sketcher.Constraint("Coincident", 83, 2, 0, 1),
    Sketcher.Constraint("Vertical", 0),
    Sketcher.Constraint("Horizontal", 1),
    Sketcher.Constraint("Horizontal", 5),
    Sketcher.Constraint("Horizontal", 9),
    Sketcher.Constraint("Horizontal", 13),
    Sketcher.Constraint("Horizontal", 17),
    Sketcher.Constraint("Horizontal", 21),
    Sketcher.Constraint("Horizontal", 25),
    Sketcher.Constraint("Horizontal", 29),
    Sketcher.Constraint("Horizontal", 33),
    Sketcher.Constraint("Horizontal", 37),
    Sketcher.Constraint("Horizontal", 41),
    Sketcher.Constraint("Horizontal", 45),
    Sketcher.Constraint("Horizontal", 49),
    Sketcher.Constraint("Horizontal", 53),
    Sketcher.Constraint("Horizontal", 57),
    Sketcher.Constraint("Horizontal", 61),
    Sketcher.Constraint("Horizontal", 65),
    Sketcher.Constraint("Horizontal", 69),
    Sketcher.Constraint("Horizontal", 73),
    Sketcher.Constraint("Horizontal", 77),
    Sketcher.Constraint("Horizontal", 81),
    Sketcher.Constraint("Vertical", 82),
    Sketcher.Constraint("Horizontal", 83),
    Sketcher.Constraint("Equal", 4, 6),
    Sketcher.Constraint("Equal", 6, 8),
    Sketcher.Constraint("Equal", 2, 10),
    Sketcher.Constraint("Equal", 8, 12),
    Sketcher.Constraint("Equal", 12, 14),
    Sketcher.Constraint("Equal", 14, 16),
    Sketcher.Constraint("Equal", 10, 18),
    Sketcher.Constraint("Equal", 16, 20),
    Sketcher.Constraint("Equal", 20, 22),
    Sketcher.Constraint("Equal", 22, 24),
    Sketcher.Constraint("Equal", 18, 26),
    Sketcher.Constraint("Equal", 24, 28),
    Sketcher.Constraint("Equal", 28, 30),
    Sketcher.Constraint("Equal", 30, 32),
    Sketcher.Constraint("Equal", 26, 34),
    Sketcher.Constraint("Equal", 32, 36),
    Sketcher.Constraint("Equal", 36, 38),
    Sketcher.Constraint("Equal", 38, 40),
    Sketcher.Constraint("Equal", 34, 42),
    Sketcher.Constraint("Equal", 40, 44),
    Sketcher.Constraint("Equal", 44, 46),
    Sketcher.Constraint("Equal", 46, 48),
    Sketcher.Constraint("Equal", 42, 50),
    Sketcher.Constraint("Equal", 48, 52),
    Sketcher.Constraint("Equal", 52, 54),
    Sketcher.Constraint("Equal", 54, 56),
    Sketcher.Constraint("Equal", 50, 58),
    Sketcher.Constraint("Equal", 56, 60),
    Sketcher.Constraint("Equal", 60, 62),
    Sketcher.Constraint("Equal", 62, 64),
    Sketcher.Constraint("Equal", 58, 66),
    Sketcher.Constraint("Equal", 64, 68),
    Sketcher.Constraint("Equal", 68, 70),
    Sketcher.Constraint("Equal", 70, 72),
    Sketcher.Constraint("Equal", 66, 74),
    Sketcher.Constraint("Equal", 72, 76),
    Sketcher.Constraint("Equal", 76, 78),
    Sketcher.Constraint("Equal", 78, 80),
    Sketcher.Constraint("Parallel", 3, 11),
    Sketcher.Constraint("Parallel", 7, 15),
    Sketcher.Constraint("Parallel", 11, 19),
    Sketcher.Constraint("Parallel", 15, 23),
    Sketcher.Constraint("Parallel", 19, 27),
    Sketcher.Constraint("Parallel", 23, 31),
    Sketcher.Constraint("Parallel", 27, 35),
    Sketcher.Constraint("Parallel", 31, 39),
    Sketcher.Constraint("Parallel", 35, 43),
    Sketcher.Constraint("Parallel", 39, 47),
    Sketcher.Constraint("Parallel", 43, 51),
    Sketcher.Constraint("Parallel", 47, 55),
    Sketcher.Constraint("Parallel", 51, 59),
    Sketcher.Constraint("Parallel", 55, 63),
    Sketcher.Constraint("Parallel", 59, 67),
    Sketcher.Constraint("Parallel", 63, 71),
    Sketcher.Constraint("Parallel", 67, 75),
    Sketcher.Constraint("Parallel", 71, 79),
    Sketcher.Constraint("Horizontal", 2, 3, 10, 3),
    Sketcher.Constraint("Horizontal", 6, 3, 12, 3),
    Sketcher.Constraint("Horizontal", 8, 3, 16, 3),
    Sketcher.Constraint("Horizontal", 14, 3, 20, 3),
    Sketcher.Constraint("Horizontal", 16, 3, 24, 3),
    Sketcher.Constraint("Horizontal", 22, 3, 28, 3),
    Sketcher.Constraint("Horizontal", 24, 3, 32, 3),
    Sketcher.Constraint("Horizontal", 30, 3, 36, 3),
    Sketcher.Constraint("Horizontal", 32, 3, 40, 3),
    Sketcher.Constraint("Horizontal", 38, 3, 44, 3),
    Sketcher.Constraint("Horizontal", 40, 3, 48, 3),
    Sketcher.Constraint("Horizontal", 46, 3, 52, 3),
    Sketcher.Constraint("Horizontal", 48, 3, 56, 3),
    Sketcher.Constraint("Horizontal", 54, 3, 60, 3),
    Sketcher.Constraint("Horizontal", 56, 3, 64, 3),
    Sketcher.Constraint("Horizontal", 62, 3, 68, 3),
    Sketcher.Constraint("Horizontal", 64, 3, 72, 3),
    Sketcher.Constraint("Horizontal", 70, 3, 76, 3),
    Sketcher.Constraint("Horizontal", 72, 3, 80, 3),
    Sketcher.Constraint("Horizontal", 3, 2, 6, 2),
    Sketcher.Constraint("Horizontal", 2, 1, 7, 2),
    Sketcher.Constraint("Horizontal", 7, 2, 10, 1),
    Sketcher.Constraint("Horizontal", 6, 2, 11, 2),
    Sketcher.Constraint("Horizontal", 11, 2, 14, 2),
    Sketcher.Constraint("Horizontal", 10, 1, 15, 2),
    Sketcher.Constraint("Horizontal", 15, 2, 18, 1),
    Sketcher.Constraint("Horizontal", 14, 2, 19, 2),
    Sketcher.Constraint("Horizontal", 19, 2, 22, 2),
    Sketcher.Constraint("Horizontal", 18, 1, 23, 2),
    Sketcher.Constraint("Horizontal", 23, 2, 26, 1),
    Sketcher.Constraint("Horizontal", 22, 2, 27, 2),
    Sketcher.Constraint("Horizontal", 27, 2, 30, 2),
    Sketcher.Constraint("Horizontal", 26, 1, 31, 2),
    Sketcher.Constraint("Horizontal", 31, 2, 34, 1),
    Sketcher.Constraint("Horizontal", 30, 2, 35, 2),
    Sketcher.Constraint("Horizontal", 35, 2, 38, 2),
    Sketcher.Constraint("Horizontal", 34, 1, 39, 2),
    Sketcher.Constraint("Horizontal", 39, 2, 42, 1),
    Sketcher.Constraint("Horizontal", 38, 2, 43, 2),
    Sketcher.Constraint("Horizontal", 43, 2, 46, 2),
    Sketcher.Constraint("Horizontal", 42, 1, 47, 2),
    Sketcher.Constraint("Horizontal", 47, 2, 50, 1),
    Sketcher.Constraint("Horizontal", 46, 2, 51, 2),
    Sketcher.Constraint("Horizontal", 51, 2, 54, 2),
    Sketcher.Constraint("Horizontal", 50, 1, 55, 2),
    Sketcher.Constraint("Horizontal", 55, 2, 58, 1),
    Sketcher.Constraint("Horizontal", 54, 2, 59, 2),
    Sketcher.Constraint("Horizontal", 59, 2, 62, 2),
    Sketcher.Constraint("Horizontal", 58, 1, 63, 2),
    Sketcher.Constraint("Horizontal", 63, 2, 66, 1),
    Sketcher.Constraint("Horizontal", 62, 2, 67, 2),
    Sketcher.Constraint("Horizontal", 67, 2, 70, 2),
    Sketcher.Constraint("Horizontal", 66, 1, 71, 2),
    Sketcher.Constraint("Horizontal", 71, 2, 74, 1),
    Sketcher.Constraint("Horizontal", 70, 2, 75, 2),
    Sketcher.Constraint("Horizontal", 75, 2, 78, 2),
    Sketcher.Constraint("Horizontal", 74, 1, 79, 2),
    Sketcher.Constraint("Vertical", 2, 3, 1, 2),
    Sketcher.Constraint("Vertical", 10, 3, 9, 2),
    Sketcher.Constraint("Vertical", 18, 3, 17, 2),
    Sketcher.Constraint("Vertical", 26, 3, 25, 2),
    Sketcher.Constraint("Vertical", 34, 3, 33, 2),
    Sketcher.Constraint("Vertical", 42, 3, 41, 2),
    Sketcher.Constraint("Vertical", 50, 3, 49, 2),
    Sketcher.Constraint("Vertical", 58, 3, 57, 2),
    Sketcher.Constraint("Vertical", 66, 3, 65, 2),
    Sketcher.Constraint("Vertical", 74, 3, 73, 2),
    Sketcher.Constraint("Equal", 5, 13),
    Sketcher.Constraint("Equal", 9, 17),
    Sketcher.Constraint("Equal", 13, 21),
    Sketcher.Constraint("Equal", 17, 25),
    Sketcher.Constraint("Equal", 21, 29),
    Sketcher.Constraint("Equal", 25, 33),
    Sketcher.Constraint("Equal", 29, 37),
    Sketcher.Constraint("Equal", 33, 41),
    Sketcher.Constraint("Equal", 37, 45),
    Sketcher.Constraint("Equal", 41, 49),
    Sketcher.Constraint("Equal", 45, 53),
    Sketcher.Constraint("Equal", 49, 57),
    Sketcher.Constraint("Equal", 53, 61),
    Sketcher.Constraint("Equal", 57, 65),
    Sketcher.Constraint("Equal", 61, 69),
    Sketcher.Constraint("Equal", 65, 73),
    Sketcher.Constraint("Equal", 69, 77),
    Sketcher.Constraint("Equal", 1, 81),
    Sketcher.Constraint("Equal", 3, 7),
    Sketcher.Constraint("Radius", 4, 0.200001),
    Sketcher.Constraint("DistanceX", 83, 2, 83, 1, 25.0),
    Sketcher.Constraint("Angle", 3, Q("-70.000013 deg")),
    Sketcher.Constraint("DistanceY", 0, 2, 0, 1, 0.6),
    Sketcher.Constraint("Radius", 2, 0.200003),
    Sketcher.Constraint("DistanceX", 1, 1, 1, 2, 0.355179),
    Sketcher.Constraint("DistanceX", 9, 1, 9, 2, 0.710359),
    Sketcher.Constraint("Distance", 3, 0.464841),
    Sketcher.Constraint("DistanceX", 5, 1, 5, 2, 0.719917),
    Sketcher.Constraint("DistanceX", 2, 3, -1, 1, 21.966751),
    Sketcher.Constraint("DistanceY", -1, 1, 2, 3, 19.11812),
    Sketcher.Constraint("DistanceX", 6, 3, -1, 1, 20.71197),
    Sketcher.Constraint("DistanceX", 10, 3, -1, 1, 19.466751),
    Sketcher.Constraint("DistanceX", 14, 3, -1, 1, 18.21197),
    Sketcher.Constraint("DistanceX", 18, 3, -1, 1, 16.966751),
    Sketcher.Constraint("DistanceX", 22, 3, -1, 1, 15.71197),
    Sketcher.Constraint("DistanceX", 26, 3, -1, 1, 14.466751),
    Sketcher.Constraint("DistanceX", 30, 3, -1, 1, 13.21197),
    Sketcher.Constraint("DistanceX", 34, 3, -1, 1, 11.966751),
    Sketcher.Constraint("DistanceX", 38, 3, -1, 1, 10.71197),
    Sketcher.Constraint("DistanceX", 42, 3, -1, 1, 9.466751),
    Sketcher.Constraint("DistanceX", 46, 3, -1, 1, 8.21197),
    Sketcher.Constraint("DistanceX", 50, 3, -1, 1, 6.966751),
    Sketcher.Constraint("DistanceX", 54, 3, -1, 1, 5.71197),
    Sketcher.Constraint("DistanceX", 58, 3, -1, 1, 4.466751),
    Sketcher.Constraint("DistanceX", 62, 3, -1, 1, 3.21197),
    Sketcher.Constraint("DistanceX", 66, 3, -1, 1, 1.966751),
    Sketcher.Constraint("DistanceX", 70, 3, -1, 1, 0.71197),
    Sketcher.Constraint("DistanceX", -1, 1, 74, 3, 0.533249),
    Sketcher.Constraint("DistanceX", -1, 1, 78, 3, 1.78803),
    Sketcher.Constraint("DistanceX", 2, 1, -1, 1, 21.77881),
    Sketcher.Constraint("DistanceX", 6, 2, -1, 1, 20.524031),
])
pad1 = body.newObject("PartDesign::Pad", "Pad")
pad1.Profile = sketch1
pad1.Length = 5

doc.recompute()
